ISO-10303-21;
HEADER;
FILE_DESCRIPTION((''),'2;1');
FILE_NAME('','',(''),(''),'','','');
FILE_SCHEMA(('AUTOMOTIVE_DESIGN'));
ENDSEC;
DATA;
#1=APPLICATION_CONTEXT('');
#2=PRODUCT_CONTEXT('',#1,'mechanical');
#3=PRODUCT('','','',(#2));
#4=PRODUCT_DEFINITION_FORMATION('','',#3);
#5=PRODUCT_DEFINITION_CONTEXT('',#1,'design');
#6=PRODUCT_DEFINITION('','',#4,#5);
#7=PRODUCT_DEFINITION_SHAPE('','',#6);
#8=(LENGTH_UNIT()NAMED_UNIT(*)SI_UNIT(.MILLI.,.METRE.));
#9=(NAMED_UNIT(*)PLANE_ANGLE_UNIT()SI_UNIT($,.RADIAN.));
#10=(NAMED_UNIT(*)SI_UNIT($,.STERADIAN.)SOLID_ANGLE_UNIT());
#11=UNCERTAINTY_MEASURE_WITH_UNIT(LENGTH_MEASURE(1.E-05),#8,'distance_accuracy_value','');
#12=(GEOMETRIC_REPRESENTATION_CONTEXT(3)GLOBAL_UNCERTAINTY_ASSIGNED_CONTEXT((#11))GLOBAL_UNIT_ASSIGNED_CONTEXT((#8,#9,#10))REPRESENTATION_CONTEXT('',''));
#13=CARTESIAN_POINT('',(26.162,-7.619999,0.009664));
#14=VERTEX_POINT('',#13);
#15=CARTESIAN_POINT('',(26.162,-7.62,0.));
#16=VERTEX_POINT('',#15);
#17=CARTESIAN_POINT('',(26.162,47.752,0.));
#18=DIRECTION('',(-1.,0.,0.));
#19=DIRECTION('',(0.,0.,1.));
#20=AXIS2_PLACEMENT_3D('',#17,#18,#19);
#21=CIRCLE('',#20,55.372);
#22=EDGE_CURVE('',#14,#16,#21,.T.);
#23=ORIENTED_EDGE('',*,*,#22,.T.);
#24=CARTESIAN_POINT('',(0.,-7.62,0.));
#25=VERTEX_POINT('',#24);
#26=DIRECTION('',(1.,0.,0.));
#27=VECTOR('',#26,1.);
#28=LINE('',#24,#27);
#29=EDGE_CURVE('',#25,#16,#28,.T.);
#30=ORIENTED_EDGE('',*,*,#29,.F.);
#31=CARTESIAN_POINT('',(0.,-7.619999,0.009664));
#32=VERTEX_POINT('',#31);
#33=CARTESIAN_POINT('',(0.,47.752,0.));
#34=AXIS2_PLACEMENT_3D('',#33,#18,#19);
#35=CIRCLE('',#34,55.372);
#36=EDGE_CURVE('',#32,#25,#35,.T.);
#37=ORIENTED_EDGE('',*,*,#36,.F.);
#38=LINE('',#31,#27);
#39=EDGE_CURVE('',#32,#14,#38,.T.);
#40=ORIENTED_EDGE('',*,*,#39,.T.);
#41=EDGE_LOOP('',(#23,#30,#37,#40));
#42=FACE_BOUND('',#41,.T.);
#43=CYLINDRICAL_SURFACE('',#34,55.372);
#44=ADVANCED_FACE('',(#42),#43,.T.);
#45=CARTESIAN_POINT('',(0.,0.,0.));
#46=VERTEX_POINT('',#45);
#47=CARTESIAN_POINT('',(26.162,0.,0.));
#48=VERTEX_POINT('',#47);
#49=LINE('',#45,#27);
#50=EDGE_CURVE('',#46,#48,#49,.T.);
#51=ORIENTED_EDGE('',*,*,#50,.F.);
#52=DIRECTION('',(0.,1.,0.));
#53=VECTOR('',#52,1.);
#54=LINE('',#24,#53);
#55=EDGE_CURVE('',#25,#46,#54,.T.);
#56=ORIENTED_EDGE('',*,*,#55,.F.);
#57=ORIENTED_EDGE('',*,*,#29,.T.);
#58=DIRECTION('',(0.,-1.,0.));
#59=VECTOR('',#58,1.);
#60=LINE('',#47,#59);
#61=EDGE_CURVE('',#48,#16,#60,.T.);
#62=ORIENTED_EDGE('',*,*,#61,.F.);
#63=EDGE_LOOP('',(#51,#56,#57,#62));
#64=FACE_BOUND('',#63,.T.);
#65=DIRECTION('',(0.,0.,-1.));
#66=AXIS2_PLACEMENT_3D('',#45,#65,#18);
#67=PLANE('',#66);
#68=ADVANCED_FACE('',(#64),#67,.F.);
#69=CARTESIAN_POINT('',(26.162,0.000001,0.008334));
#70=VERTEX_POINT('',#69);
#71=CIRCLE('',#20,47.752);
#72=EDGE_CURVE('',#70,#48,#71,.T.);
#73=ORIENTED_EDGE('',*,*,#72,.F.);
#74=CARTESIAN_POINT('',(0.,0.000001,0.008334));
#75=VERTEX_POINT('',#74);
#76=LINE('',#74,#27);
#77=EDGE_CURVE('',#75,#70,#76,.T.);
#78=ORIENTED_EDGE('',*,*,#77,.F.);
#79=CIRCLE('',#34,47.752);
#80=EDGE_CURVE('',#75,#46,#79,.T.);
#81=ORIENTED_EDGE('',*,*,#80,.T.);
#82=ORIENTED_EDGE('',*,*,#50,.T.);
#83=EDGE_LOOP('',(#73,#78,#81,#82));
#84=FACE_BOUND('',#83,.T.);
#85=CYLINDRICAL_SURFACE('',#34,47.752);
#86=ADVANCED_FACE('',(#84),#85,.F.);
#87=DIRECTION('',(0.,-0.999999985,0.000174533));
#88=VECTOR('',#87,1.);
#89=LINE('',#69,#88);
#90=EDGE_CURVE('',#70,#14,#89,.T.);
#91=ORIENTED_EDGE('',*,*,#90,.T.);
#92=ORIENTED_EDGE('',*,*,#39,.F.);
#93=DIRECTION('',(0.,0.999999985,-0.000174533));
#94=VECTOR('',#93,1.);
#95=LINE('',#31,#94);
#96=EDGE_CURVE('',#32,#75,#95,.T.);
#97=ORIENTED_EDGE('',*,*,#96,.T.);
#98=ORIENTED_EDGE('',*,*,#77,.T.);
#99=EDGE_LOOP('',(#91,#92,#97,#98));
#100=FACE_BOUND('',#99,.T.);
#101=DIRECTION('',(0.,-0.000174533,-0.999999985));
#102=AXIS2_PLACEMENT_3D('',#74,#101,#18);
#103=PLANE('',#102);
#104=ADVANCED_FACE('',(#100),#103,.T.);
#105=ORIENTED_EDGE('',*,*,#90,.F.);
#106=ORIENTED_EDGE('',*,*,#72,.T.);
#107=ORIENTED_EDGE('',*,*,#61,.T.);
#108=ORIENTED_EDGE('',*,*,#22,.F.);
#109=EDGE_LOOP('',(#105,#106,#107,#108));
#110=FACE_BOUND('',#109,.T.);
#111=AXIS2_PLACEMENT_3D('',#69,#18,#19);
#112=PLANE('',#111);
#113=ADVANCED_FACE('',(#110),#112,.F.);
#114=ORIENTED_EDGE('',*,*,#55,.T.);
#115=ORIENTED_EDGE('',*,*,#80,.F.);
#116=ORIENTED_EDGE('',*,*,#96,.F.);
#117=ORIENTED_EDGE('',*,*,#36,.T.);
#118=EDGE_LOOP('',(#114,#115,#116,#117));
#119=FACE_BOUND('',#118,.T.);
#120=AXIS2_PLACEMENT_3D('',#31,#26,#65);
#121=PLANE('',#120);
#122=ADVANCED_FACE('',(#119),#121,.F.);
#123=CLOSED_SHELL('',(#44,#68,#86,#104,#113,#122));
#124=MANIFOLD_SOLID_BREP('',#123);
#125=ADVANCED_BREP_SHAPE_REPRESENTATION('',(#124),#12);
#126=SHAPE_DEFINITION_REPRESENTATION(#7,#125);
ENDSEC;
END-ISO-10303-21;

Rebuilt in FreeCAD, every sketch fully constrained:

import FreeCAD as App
import Part
import Sketcher
from FreeCAD import Vector
Q = App.Units.Quantity


def add_polygon(sketch, points):
    """Adds a closed chain of lines whose ends are joined by coincident constraints."""
    first, n = sketch.GeometryCount, len(points)
    for a, b in zip(points, points[1:] + points[:1]):
        sketch.addGeometry(Part.LineSegment(App.Vector(*a, 0), App.Vector(*b, 0)), False)
    for i in range(n):
        sketch.addConstraint(Sketcher.Constraint("Coincident", first + i, 2, first + (i + 1) % n, 1))

doc = App.newDocument("Part")
body = doc.addObject("PartDesign::Body", "Body")

# Sketch on XY plane
sketch1 = body.newObject("Sketcher::SketchObject", "Sketch")
sketch1.AttachmentSupport = (doc.getObject("XY_Plane"), [""])
sketch1.MapMode = "FlatFace"
add_polygon(sketch1, [(0, 0), (0, -8), (26, -8), (26, 0)])  # lines 0-3
sketch1.addGeometry(Part.LineSegment(Vector(0, 48, 0), Vector(26, 48, 0)), True)  # axis
sketch1.addConstraint(Sketcher.Constraint("Vertical", 0))
sketch1.addConstraint(Sketcher.Constraint("Horizontal", 1))
sketch1.addConstraint(Sketcher.Constraint("Vertical", 2))
sketch1.addConstraint(Sketcher.Constraint("Horizontal", 3))
sketch1.addConstraint(Sketcher.Constraint("Horizontal", 4))
sketch1.addConstraint(Sketcher.Constraint("Coincident", 3, 2, -1, 1))
sketch1.addConstraint(Sketcher.Constraint("PointOnObject", 4, 1, -2))
sketch1.addConstraint(Sketcher.Constraint("Vertical", 2, 2, 4, 2))
sketch1.addConstraint(Sketcher.Constraint("DistanceY", 0, 2, 0, 1, Q("0.3 in")))
sketch1.addConstraint(Sketcher.Constraint("DistanceX", 1, 1, 1, 2, Q("1.03 in")))
sketch1.addConstraint(Sketcher.Constraint("DistanceY", -1, 1, 4, 1, Q("1.88 in")))
revolution = body.newObject("PartDesign::Revolution", "Revolution")
revolution.Profile = sketch1
revolution.ReferenceAxis = (sketch1, ["Axis0"])
revolution.Angle = 359.99

doc.recompute()
